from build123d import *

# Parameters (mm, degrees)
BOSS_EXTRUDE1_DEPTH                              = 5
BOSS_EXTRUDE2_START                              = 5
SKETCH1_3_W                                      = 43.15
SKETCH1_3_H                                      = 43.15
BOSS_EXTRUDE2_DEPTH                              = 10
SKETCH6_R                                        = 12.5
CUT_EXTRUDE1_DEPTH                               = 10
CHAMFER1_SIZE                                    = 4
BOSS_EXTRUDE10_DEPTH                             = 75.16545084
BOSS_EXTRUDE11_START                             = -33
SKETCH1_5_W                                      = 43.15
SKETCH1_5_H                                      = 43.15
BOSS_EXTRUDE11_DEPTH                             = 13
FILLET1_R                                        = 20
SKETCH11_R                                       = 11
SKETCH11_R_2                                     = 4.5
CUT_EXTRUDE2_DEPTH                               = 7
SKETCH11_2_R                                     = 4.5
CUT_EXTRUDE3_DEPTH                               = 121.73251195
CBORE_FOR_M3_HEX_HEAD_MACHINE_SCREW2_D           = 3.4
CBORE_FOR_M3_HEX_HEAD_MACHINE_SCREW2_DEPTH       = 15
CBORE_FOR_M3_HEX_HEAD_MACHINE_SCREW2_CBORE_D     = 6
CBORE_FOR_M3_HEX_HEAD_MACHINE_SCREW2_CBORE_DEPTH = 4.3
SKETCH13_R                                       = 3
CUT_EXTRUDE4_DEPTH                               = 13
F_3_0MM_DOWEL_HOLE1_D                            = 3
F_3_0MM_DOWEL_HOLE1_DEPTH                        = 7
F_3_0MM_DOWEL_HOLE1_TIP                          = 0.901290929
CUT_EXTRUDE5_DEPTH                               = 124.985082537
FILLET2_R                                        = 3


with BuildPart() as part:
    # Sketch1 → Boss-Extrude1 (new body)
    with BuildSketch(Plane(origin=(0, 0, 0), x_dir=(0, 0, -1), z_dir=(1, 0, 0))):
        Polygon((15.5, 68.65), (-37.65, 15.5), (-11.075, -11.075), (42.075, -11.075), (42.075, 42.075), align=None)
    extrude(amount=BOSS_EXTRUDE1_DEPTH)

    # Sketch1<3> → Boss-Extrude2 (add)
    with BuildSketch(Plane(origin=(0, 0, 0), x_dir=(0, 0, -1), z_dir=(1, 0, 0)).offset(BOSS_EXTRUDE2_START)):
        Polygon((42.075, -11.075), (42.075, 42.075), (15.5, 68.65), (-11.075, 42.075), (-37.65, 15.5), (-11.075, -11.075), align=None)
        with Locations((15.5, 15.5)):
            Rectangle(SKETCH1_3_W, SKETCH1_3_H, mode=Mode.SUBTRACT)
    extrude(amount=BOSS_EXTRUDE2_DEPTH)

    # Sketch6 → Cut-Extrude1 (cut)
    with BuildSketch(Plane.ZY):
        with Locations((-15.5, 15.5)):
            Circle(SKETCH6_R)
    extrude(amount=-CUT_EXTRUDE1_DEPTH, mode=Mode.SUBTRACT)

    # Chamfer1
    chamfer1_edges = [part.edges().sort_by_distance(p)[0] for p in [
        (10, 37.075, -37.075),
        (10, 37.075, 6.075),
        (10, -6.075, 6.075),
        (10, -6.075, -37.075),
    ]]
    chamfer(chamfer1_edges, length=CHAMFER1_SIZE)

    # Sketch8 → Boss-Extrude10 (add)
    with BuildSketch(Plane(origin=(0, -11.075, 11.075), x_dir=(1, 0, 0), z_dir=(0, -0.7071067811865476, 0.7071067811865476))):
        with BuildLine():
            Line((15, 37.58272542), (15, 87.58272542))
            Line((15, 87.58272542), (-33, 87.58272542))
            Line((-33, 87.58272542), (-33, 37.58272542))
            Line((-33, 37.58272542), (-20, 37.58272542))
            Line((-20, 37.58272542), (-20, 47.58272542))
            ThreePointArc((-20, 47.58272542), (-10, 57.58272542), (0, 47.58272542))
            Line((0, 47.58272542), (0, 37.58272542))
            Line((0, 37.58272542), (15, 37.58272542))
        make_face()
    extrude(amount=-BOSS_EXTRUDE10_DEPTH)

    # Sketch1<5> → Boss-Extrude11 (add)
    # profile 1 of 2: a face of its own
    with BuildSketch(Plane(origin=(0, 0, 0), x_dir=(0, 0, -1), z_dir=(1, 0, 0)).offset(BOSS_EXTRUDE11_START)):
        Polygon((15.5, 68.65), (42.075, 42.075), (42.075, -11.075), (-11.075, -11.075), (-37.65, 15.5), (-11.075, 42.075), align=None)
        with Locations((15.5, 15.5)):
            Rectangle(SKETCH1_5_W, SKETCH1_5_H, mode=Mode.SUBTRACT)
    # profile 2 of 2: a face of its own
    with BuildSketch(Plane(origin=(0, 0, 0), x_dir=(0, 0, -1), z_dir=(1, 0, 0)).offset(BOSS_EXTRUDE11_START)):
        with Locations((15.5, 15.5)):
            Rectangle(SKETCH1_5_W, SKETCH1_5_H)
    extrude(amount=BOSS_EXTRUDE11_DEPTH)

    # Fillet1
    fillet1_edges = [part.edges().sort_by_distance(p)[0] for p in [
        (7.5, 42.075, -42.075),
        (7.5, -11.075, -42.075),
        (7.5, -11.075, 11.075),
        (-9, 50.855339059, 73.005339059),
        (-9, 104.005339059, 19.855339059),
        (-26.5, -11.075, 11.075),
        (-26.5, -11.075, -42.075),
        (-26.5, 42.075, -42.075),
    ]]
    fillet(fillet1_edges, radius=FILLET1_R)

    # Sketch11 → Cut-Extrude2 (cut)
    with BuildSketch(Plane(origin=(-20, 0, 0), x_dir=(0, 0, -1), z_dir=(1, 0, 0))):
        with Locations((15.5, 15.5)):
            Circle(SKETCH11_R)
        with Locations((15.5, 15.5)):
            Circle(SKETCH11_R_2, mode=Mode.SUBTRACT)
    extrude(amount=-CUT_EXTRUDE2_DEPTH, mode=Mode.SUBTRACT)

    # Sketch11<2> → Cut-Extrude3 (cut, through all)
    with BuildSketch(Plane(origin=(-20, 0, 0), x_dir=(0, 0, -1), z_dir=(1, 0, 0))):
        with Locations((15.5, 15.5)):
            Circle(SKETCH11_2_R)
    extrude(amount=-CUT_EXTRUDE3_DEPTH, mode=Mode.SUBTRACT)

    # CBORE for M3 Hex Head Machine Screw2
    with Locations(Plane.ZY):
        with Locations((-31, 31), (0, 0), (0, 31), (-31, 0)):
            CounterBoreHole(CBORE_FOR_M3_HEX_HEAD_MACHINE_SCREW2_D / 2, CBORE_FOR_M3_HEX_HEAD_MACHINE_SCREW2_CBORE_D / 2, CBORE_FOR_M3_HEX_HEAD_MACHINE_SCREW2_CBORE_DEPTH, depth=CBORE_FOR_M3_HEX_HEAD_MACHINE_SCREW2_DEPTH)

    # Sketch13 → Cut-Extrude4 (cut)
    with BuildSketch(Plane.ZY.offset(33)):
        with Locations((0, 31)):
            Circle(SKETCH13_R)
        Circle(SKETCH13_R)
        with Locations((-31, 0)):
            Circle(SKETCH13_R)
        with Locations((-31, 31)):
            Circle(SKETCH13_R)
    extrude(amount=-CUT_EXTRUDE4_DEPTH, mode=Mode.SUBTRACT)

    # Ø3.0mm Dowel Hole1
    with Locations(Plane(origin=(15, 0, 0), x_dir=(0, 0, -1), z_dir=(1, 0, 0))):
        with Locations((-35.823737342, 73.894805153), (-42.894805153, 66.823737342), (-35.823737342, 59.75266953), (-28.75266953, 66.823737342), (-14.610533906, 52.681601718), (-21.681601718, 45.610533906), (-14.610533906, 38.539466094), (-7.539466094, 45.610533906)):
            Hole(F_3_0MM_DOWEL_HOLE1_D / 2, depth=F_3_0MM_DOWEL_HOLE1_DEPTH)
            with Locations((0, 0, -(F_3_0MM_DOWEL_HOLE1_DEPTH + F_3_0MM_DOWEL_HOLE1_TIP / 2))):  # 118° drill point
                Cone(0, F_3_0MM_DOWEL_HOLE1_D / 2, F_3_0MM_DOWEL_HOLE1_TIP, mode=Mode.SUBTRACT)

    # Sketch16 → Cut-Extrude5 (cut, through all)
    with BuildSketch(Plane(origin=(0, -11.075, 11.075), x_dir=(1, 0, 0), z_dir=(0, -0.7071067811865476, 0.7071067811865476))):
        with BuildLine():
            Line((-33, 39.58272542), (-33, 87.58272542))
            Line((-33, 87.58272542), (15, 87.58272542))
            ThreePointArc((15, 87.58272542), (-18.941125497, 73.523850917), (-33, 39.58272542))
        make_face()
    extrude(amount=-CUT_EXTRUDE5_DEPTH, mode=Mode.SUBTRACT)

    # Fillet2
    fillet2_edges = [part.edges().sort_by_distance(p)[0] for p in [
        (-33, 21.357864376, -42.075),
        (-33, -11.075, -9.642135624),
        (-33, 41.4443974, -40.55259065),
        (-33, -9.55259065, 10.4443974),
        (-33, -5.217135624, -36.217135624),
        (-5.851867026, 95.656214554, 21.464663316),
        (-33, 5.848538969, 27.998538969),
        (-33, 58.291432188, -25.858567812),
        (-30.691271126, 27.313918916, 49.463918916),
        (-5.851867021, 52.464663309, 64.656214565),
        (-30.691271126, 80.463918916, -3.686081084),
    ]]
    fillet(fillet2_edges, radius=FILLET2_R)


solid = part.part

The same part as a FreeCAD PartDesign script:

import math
import FreeCAD as App
import Part
import Sketcher
from FreeCAD import Vector


def edges_at(feature, points):
    """Names of the edges that pass closest to the given points."""
    edges = feature.Shape.Edges
    near = lambda p: min(range(len(edges)), key=lambda i: edges[i].distToShape(Part.Vertex(*p))[0])
    return sorted({f"Edge{near(p) + 1}" for p in points})


def add_polygon(sketch, points):
    """Adds a closed chain of lines whose ends are joined by coincident constraints."""
    first, n = sketch.GeometryCount, len(points)
    for a, b in zip(points, points[1:] + points[:1]):
        sketch.addGeometry(Part.LineSegment(App.Vector(*a, 0), App.Vector(*b, 0)), False)
    for i in range(n):
        sketch.addConstraint(Sketcher.Constraint("Coincident", first + i, 2, first + (i + 1) % n, 1))

doc = App.newDocument("Part")
body = doc.addObject("PartDesign::Body", "Body")

# Sketch on YZ plane
sketch1 = body.newObject("Sketcher::SketchObject", "Sketch")
sketch1.AttachmentSupport = (doc.getObject("YZ_Plane"), [""])
sketch1.MapMode = "FlatFace"
add_polygon(sketch1, [(68.65, -15.5), (15.5, 37.65), (-11.075, 11.075), (-11.075, -42.075), (42.075, -42.075)])  # lines 0-4
sketch1.addConstraint([
    Sketcher.Constraint("Vertical", 2),
    Sketcher.Constraint("Horizontal", 3),
    Sketcher.Constraint("Perpendicular", 0, 1),
    Sketcher.Constraint("Parallel", 1, 4),
    Sketcher.Constraint("Equal", 3, 2),
    Sketcher.Constraint("Equal", 1, 4),
    Sketcher.Constraint("DistanceX", 3, 1, 3, 2, 53.15),
    Sketcher.Constraint("DistanceX", -1, 1, 0, 2, 15.5),
    Sketcher.Constraint("DistanceY", 4, 2, -1, 1, 15.5),
    Sketcher.Constraint("DistanceX", 1, 2, -1, 1, 11.075),
])
pad1 = body.newObject("PartDesign::Pad", "Pad")
pad1.Profile = sketch1
pad1.Length = 5

# Sketch on YZ plane
sketch2 = body.newObject("Sketcher::SketchObject", "Sketch001")
sketch2.AttachmentSupport = (doc.getObject("YZ_Plane"), [""])
sketch2.MapMode = "FlatFace"
sketch2.AttachmentOffset = App.Placement(Vector(0, 0, 5), App.Rotation())
add_polygon(sketch2, [(-11.075, -42.075), (42.075, -42.075), (68.65, -15.5), (15.5, 37.65), (-11.075, 11.075)])  # lines 0-4
add_polygon(sketch2, [(-6.075, -37.075), (-6.075, 6.075), (37.075, 6.075), (37.075, -37.075)])  # lines 5-8
sketch2.addConstraint([
    Sketcher.Constraint("Horizontal", 0),
    Sketcher.Constraint("Vertical", 4),
    Sketcher.Constraint("Vertical", 5),
    Sketcher.Constraint("Horizontal", 6),
    Sketcher.Constraint("Vertical", 7),
    Sketcher.Constraint("Horizontal", 8),
    Sketcher.Constraint("Perpendicular", 1, 2),
    Sketcher.Constraint("Perpendicular", 2, 3),
    Sketcher.Constraint("Equal", 0, 4),
    Sketcher.Constraint("Equal", 8, 5),
    Sketcher.Constraint("Equal", 1, 3),
    Sketcher.Constraint("DistanceX", 3, 2, 5, 2, 5.0),
    Sketcher.Constraint("DistanceY", 5, 2, 3, 2, 5.0),
    Sketcher.Constraint("DistanceX", 6, 2, 0, 2, 5.0),
    Sketcher.Constraint("DistanceX", 0, 1, 0, 2, 53.15),
    Sketcher.Constraint("DistanceY", 1, 2, -1, 1, 15.5),
    Sketcher.Constraint("DistanceX", -1, 1, 2, 2, 15.5),
    Sketcher.Constraint("DistanceX", -1, 1, 0, 2, 42.075),
])
pad2 = body.newObject("PartDesign::Pad", "Pad001")
pad2.Profile = sketch2
pad2.Length = 10

# Sketch on YZ plane
sketch3 = body.newObject("Sketcher::SketchObject", "Sketch002")
sketch3.AttachmentSupport = (doc.getObject("YZ_Plane"), [""])
sketch3.MapMode = "FlatFace"
sketch3.addGeometry(Part.Circle(Vector(15.5, -15.5, 0), Vector(0, 0, 1), 12.5), False)
sketch3.addConstraint([
    Sketcher.Constraint("Diameter", 0, 25.0),
    Sketcher.Constraint("DistanceX", -1, 1, 0, 3, 15.5),
    Sketcher.Constraint("DistanceY", 0, 3, -1, 1, 15.5),
])
pocket1 = body.newObject("PartDesign::Pocket", "Pocket")
pocket1.Profile = sketch3
pocket1.Length = 10
pocket1.Reversed = True
doc.recompute()

chamfer = body.newObject("PartDesign::Chamfer", "Chamfer")
chamfer.Base = (pocket1, edges_at(pocket1, [
    (10, 37.075, -37.075),
    (10, 37.075, 6.075),
    (10, -6.075, 6.075),
    (10, -6.075, -37.075),
]))
chamfer.Size = 4

# Sketch on an angled plane
sketch4 = body.newObject("Sketcher::SketchObject", "Sketch003")
sketch4.Placement = App.Placement(Vector(0, -11.075, 11.075), App.Rotation(Vector(1, 0, 0), Vector(0, 0.707106781, 0.707106781), Vector(0, -0.707106781, 0.707106781), "ZXY"))
sketch4.addGeometry([
    Part.LineSegment(Vector(15, 37.582725, 0), Vector(15, 87.582725, 0)),  # 0
    Part.LineSegment(Vector(15, 87.582725, 0), Vector(-33, 87.582725, 0)),  # 1
    Part.LineSegment(Vector(-33, 87.582725, 0), Vector(-33, 37.582725, 0)),  # 2
    Part.LineSegment(Vector(-33, 37.582725, 0), Vector(-20, 37.582725, 0)),  # 3
    Part.LineSegment(Vector(-20, 37.582725, 0), Vector(-20, 47.582725, 0)),  # 4
    Part.ArcOfCircle(Part.Circle(Vector(-10, 47.582725, 0), Vector(0, 0, 1), 10), math.radians(0), math.radians(180)),  # 5
    Part.LineSegment(Vector(0, 47.582725, 0), Vector(0, 37.582725, 0)),  # 6
    Part.LineSegment(Vector(0, 37.582725, 0), Vector(15, 37.582725, 0)),  # 7
], False)
sketch4.addConstraint([
    Sketcher.Constraint("Coincident", 0, 2, 1, 1),
    Sketcher.Constraint("Coincident", 1, 2, 2, 1),
    Sketcher.Constraint("Coincident", 2, 2, 3, 1),
    Sketcher.Constraint("Coincident", 3, 2, 4, 1),
    Sketcher.Constraint("Tangent", 4, 2, 5, 2),
    Sketcher.Constraint("Tangent", 5, 1, 6, 1),
    Sketcher.Constraint("Coincident", 6, 2, 7, 1),
    Sketcher.Constraint("Coincident", 7, 2, 0, 1),
    Sketcher.Constraint("Vertical", 0),
    Sketcher.Constraint("Horizontal", 1),
    Sketcher.Constraint("Vertical", 2),
    Sketcher.Constraint("Horizontal", 3),
    Sketcher.Constraint("Vertical", 4),
    Sketcher.Constraint("Vertical", 6),
    Sketcher.Constraint("Horizontal", 7),
    Sketcher.Constraint("PointOnObject", 5, 1, -2),
    Sketcher.Constraint("Horizontal", 3, 2, 6, 2),
    Sketcher.Constraint("Radius", 5, 10.0),
    Sketcher.Constraint("DistanceX", 1, 2, 1, 1, 48.0),
    Sketcher.Constraint("DistanceX", 3, 1, 3, 2, 13.0),
    Sketcher.Constraint("DistanceY", 0, 1, 0, 2, 50.0),
    Sketcher.Constraint("DistanceY", 4, 1, 4, 2, 10.0),
    Sketcher.Constraint("DistanceY", -1, 1, 5, 3, 47.582725),
])
pad3 = body.newObject("PartDesign::Pad", "Pad002")
pad3.Profile = sketch4
pad3.Length = 75.165451
pad3.Reversed = True

# Sketch on YZ plane
sketch5 = body.newObject("Sketcher::SketchObject", "Sketch004")
sketch5.AttachmentSupport = (doc.getObject("YZ_Plane"), [""])
sketch5.MapMode = "FlatFace"
sketch5.AttachmentOffset = App.Placement(Vector(0, 0, -33), App.Rotation())
add_polygon(sketch5, [(42.075, -42.075), (68.65, -15.5), (15.5, 37.65), (-11.075, 11.075), (-11.075, -42.075)])  # lines 0-4
sketch5.addConstraint([
    Sketcher.Constraint("Vertical", 3),
    Sketcher.Constraint("Horizontal", 4),
    Sketcher.Constraint("Perpendicular", 0, 1),
    Sketcher.Constraint("Perpendicular", 1, 2),
    Sketcher.Constraint("Equal", 4, 3),
    Sketcher.Constraint("Equal", 0, 2),
    Sketcher.Constraint("DistanceX", 4, 1, 4, 2, 53.15),
    Sketcher.Constraint("DistanceY", 0, 2, -1, 1, 15.5),
    Sketcher.Constraint("DistanceX", -1, 1, 1, 2, 15.5),
    Sketcher.Constraint("DistanceX", 2, 2, -1, 1, 11.075),
])
pad4 = body.newObject("PartDesign::Pad", "Pad003")
pad4.Profile = sketch5
pad4.Length = 13
doc.recompute()

fillet = body.newObject("PartDesign::Fillet", "Fillet")
fillet.Base = (pad4, edges_at(pad4, [
    (7.5, 42.075, -42.075),
    (7.5, -11.075, -42.075),
    (7.5, -11.075, 11.075),
    (-9, 50.855, 73.005),
    (-9, 104.005, 19.855),
    (-26.5, -11.075, 11.075),
    (-26.5, -11.075, -42.075),
    (-26.5, 42.075, -42.075),
]))
fillet.Radius = 20

# Sketch on YZ plane
sketch6 = body.newObject("Sketcher::SketchObject", "Sketch005")
sketch6.AttachmentSupport = (doc.getObject("YZ_Plane"), [""])
sketch6.MapMode = "FlatFace"
sketch6.AttachmentOffset = App.Placement(Vector(0, 0, -20), App.Rotation())
sketch6.addGeometry([
    Part.Circle(Vector(15.5, -15.5, 0), Vector(0, 0, 1), 11),
    Part.Circle(Vector(15.5, -15.5, 0), Vector(0, 0, 1), 4.5),
], False)
sketch6.addConstraint([
    Sketcher.Constraint("Coincident", 1, 3, 0, 3),
    Sketcher.Constraint("Diameter", 0, 22.0),
    Sketcher.Constraint("Diameter", 1, 9.0),
    Sketcher.Constraint("DistanceX", -1, 1, 0, 3, 15.5),
    Sketcher.Constraint("DistanceY", 0, 3, -1, 1, 15.5),
])
pocket2 = body.newObject("PartDesign::Pocket", "Pocket001")
pocket2.Profile = sketch6
pocket2.Length = 7

# Sketch on YZ plane
sketch7 = body.newObject("Sketcher::SketchObject", "Sketch006")
sketch7.AttachmentSupport = (doc.getObject("YZ_Plane"), [""])
sketch7.MapMode = "FlatFace"
sketch7.AttachmentOffset = App.Placement(Vector(0, 0, -20), App.Rotation())
sketch7.addGeometry(Part.Circle(Vector(15.5, -15.5, 0), Vector(0, 0, 1), 4.5), False)
sketch7.addConstraint([
    Sketcher.Constraint("Diameter", 0, 9.0),
    Sketcher.Constraint("DistanceX", -1, 1, 0, 3, 15.5),
    Sketcher.Constraint("DistanceY", 0, 3, -1, 1, 15.5),
])
pocket3 = body.newObject("PartDesign::Pocket", "Pocket002")
pocket3.Profile = sketch7
pocket3.Type = "ThroughAll"

# Sketch on YZ plane
sketch8 = body.newObject("Sketcher::SketchObject", "Sketch007")
sketch8.AttachmentSupport = (doc.getObject("YZ_Plane"), [""])
sketch8.MapMode = "FlatFace"
sketch8.addGeometry([
    Part.Circle(Vector(31, -31, 0), Vector(0, 0, 1), 1.7),
    Part.Circle(Vector(0, 0, 0), Vector(0, 0, 1), 1.7),
    Part.Circle(Vector(31, 0, 0), Vector(0, 0, 1), 1.7),
    Part.Circle(Vector(0, -31, 0), Vector(0, 0, 1), 1.7),
], False)
sketch8.addConstraint([
    Sketcher.Constraint("Coincident", 1, 3, -1, 1),
    Sketcher.Constraint("Equal", 0, 1),
    Sketcher.Constraint("Equal", 1, 2),
    Sketcher.Constraint("Equal", 2, 3),
    Sketcher.Constraint("PointOnObject", 2, 3, -1),
    Sketcher.Constraint("PointOnObject", 3, 3, -2),
    Sketcher.Constraint("Horizontal", 0, 3, 3, 3),
    Sketcher.Constraint("Vertical", 0, 3, 2, 3),
    Sketcher.Constraint("Diameter", 0, 3.4),
    Sketcher.Constraint("DistanceX", -1, 1, 0, 3, 31.0),
    Sketcher.Constraint("DistanceY", 0, 3, -1, 1, 31.0),
])
doc.recompute()
hole = body.newObject("PartDesign::Hole", "Hole")
hole.Profile = sketch8
hole.ThreadType = "None"
hole.Diameter = 3.4
hole.DepthType = "Dimension"
hole.Depth = 15
hole.DrillPoint = "Flat"
hole.HoleCutType = "Counterbore"
hole.HoleCutDiameter = 6
hole.HoleCutDepth = 4.3
hole.Reversed = True

# Sketch on YZ plane
sketch9 = body.newObject("Sketcher::SketchObject", "Sketch008")
sketch9.AttachmentSupport = (doc.getObject("YZ_Plane"), [""])
sketch9.MapMode = "FlatFace"
sketch9.AttachmentOffset = App.Placement(Vector(0, 0, -33), App.Rotation())
sketch9.addGeometry([
    Part.Circle(Vector(31, 0, 0), Vector(0, 0, 1), 3),
    Part.Circle(Vector(0, 0, 0), Vector(0, 0, 1), 3),
    Part.Circle(Vector(0, -31, 0), Vector(0, 0, 1), 3),
    Part.Circle(Vector(31, -31, 0), Vector(0, 0, 1), 3),
], False)
sketch9.addConstraint([
    Sketcher.Constraint("Coincident", 1, 3, -1, 1),
    Sketcher.Constraint("Equal", 0, 1),
    Sketcher.Constraint("Equal", 1, 2),
    Sketcher.Constraint("Equal", 2, 3),
    Sketcher.Constraint("PointOnObject", 0, 3, -1),
    Sketcher.Constraint("PointOnObject", 2, 3, -2),
    Sketcher.Constraint("Horizontal", 2, 3, 3, 3),
    Sketcher.Constraint("Vertical", 0, 3, 3, 3),
    Sketcher.Constraint("Diameter", 0, 6.0),
    Sketcher.Constraint("DistanceX", -1, 1, 0, 3, 31.0),
    Sketcher.Constraint("DistanceY", 2, 3, -1, 1, 31.0),
])
pocket4 = body.newObject("PartDesign::Pocket", "Pocket003")
pocket4.Profile = sketch9
pocket4.Length = 13
pocket4.Reversed = True

# Sketch on YZ plane
sketch10 = body.newObject("Sketcher::SketchObject", "Sketch009")
sketch10.AttachmentSupport = (doc.getObject("YZ_Plane"), [""])
sketch10.MapMode = "FlatFace"
sketch10.AttachmentOffset = App.Placement(Vector(0, 0, 15), App.Rotation())
sketch10.addGeometry([
    Part.Circle(Vector(73.894805, 35.823737, 0), Vector(0, 0, 1), 1.5),  # 0
    Part.Circle(Vector(66.823737, 42.894805, 0), Vector(0, 0, 1), 1.5),  # 1
    Part.Circle(Vector(59.75267, 35.823737, 0), Vector(0, 0, 1), 1.5),  # 2
    Part.Circle(Vector(66.823737, 28.75267, 0), Vector(0, 0, 1), 1.5),  # 3
    Part.Circle(Vector(52.681602, 14.610534, 0), Vector(0, 0, 1), 1.5),  # 4
    Part.Circle(Vector(45.610534, 21.681602, 0), Vector(0, 0, 1), 1.5),  # 5
    Part.Circle(Vector(38.539466, 14.610534, 0), Vector(0, 0, 1), 1.5),  # 6
    Part.Circle(Vector(45.610534, 7.539466, 0), Vector(0, 0, 1), 1.5),  # 7
], False)
sketch10.addConstraint([
    Sketcher.Constraint("Equal", 0, 1),
    Sketcher.Constraint("Equal", 1, 2),
    Sketcher.Constraint("Equal", 2, 3),
    Sketcher.Constraint("Equal", 3, 4),
    Sketcher.Constraint("Equal", 4, 5),
    Sketcher.Constraint("Equal", 5, 6),
    Sketcher.Constraint("Equal", 6, 7),
    Sketcher.Constraint("Horizontal", 0, 3, 2, 3),
    Sketcher.Constraint("Horizontal", 4, 3, 6, 3),
    Sketcher.Constraint("Vertical", 1, 3, 3, 3),
    Sketcher.Constraint("Vertical", 5, 3, 7, 3),
    Sketcher.Constraint("Diameter", 0, 3.0),
    Sketcher.Constraint("DistanceX", -1, 1, 4, 3, 52.681602),
    Sketcher.Constraint("DistanceY", -1, 1, 5, 3, 21.681602),
    Sketcher.Constraint("DistanceX", -1, 1, 2, 3, 59.75267),
    Sketcher.Constraint("DistanceY", -1, 1, 3, 3, 28.75267),
    Sketcher.Constraint("DistanceY", 4, 3, 1, 3, 28.284271),
    Sketcher.Constraint("DistanceX", 5, 3, 0, 3, 28.284271),
    Sketcher.Constraint("DistanceX", 6, 3, 3, 3, 28.284271),
    Sketcher.Constraint("DistanceY", 7, 3, 2, 3, 28.284271),
    Sketcher.Constraint("DistanceX", -1, 1, 0, 3, 73.894805),
    Sketcher.Constraint("DistanceY", -1, 1, 0, 3, 35.823737),
    Sketcher.Constraint("DistanceX", -1, 1, 1, 3, 66.823737),
    Sketcher.Constraint("DistanceY", -1, 1, 1, 3, 42.894805),
])
doc.recompute()
hole2 = body.newObject("PartDesign::Hole", "Hole001")
hole2.Profile = sketch10
hole2.ThreadType = "None"
hole2.Diameter = 3
hole2.DepthType = "Dimension"
hole2.Depth = 7
hole2.DrillPoint = "Angled"
hole2.DrillPointAngle = 118

# Sketch on an angled plane
sketch11 = body.newObject("Sketcher::SketchObject", "Sketch010")
sketch11.Placement = App.Placement(Vector(0, -11.075, 11.075), App.Rotation(Vector(1, 0, 0), Vector(0, 0.707106781, 0.707106781), Vector(0, -0.707106781, 0.707106781), "ZXY"))
sketch11.addGeometry([
    Part.LineSegment(Vector(-33, 87.582725, 0), Vector(-33, 39.582725, 0)),
    Part.ArcOfCircle(Part.Circle(Vector(15, 39.582725, 0), Vector(0, 0, 1), 48), math.radians(90), math.radians(180)),
    Part.LineSegment(Vector(15, 87.582725, 0), Vector(-33, 87.582725, 0)),
], False)
sketch11.addConstraint([
    Sketcher.Constraint("Tangent", 0, 2, 1, 2),
    Sketcher.Constraint("Tangent", 1, 1, 2, 1),
    Sketcher.Constraint("Coincident", 2, 2, 0, 1),
    Sketcher.Constraint("Vertical", 0),
    Sketcher.Constraint("Horizontal", 2),
    Sketcher.Constraint("Radius", 1, 48.0),
    Sketcher.Constraint("DistanceX", -1, 1, 1, 3, 15.0),
    Sketcher.Constraint("DistanceY", -1, 1, 1, 3, 39.582725),
])
pocket5 = body.newObject("PartDesign::Pocket", "Pocket004")
pocket5.Profile = sketch11
pocket5.Type = "ThroughAll"
doc.recompute()

fillet2 = body.newObject("PartDesign::Fillet", "Fillet001")
fillet2.Base = (pocket5, edges_at(pocket5, [
    (-33, 21.358, -42.075),
    (-33, -11.075, -9.642),
    (-33, 41.444, -40.553),
    (-33, -9.553, 10.444),
    (-33, -5.217, -36.217),
    (-5.852, 95.656, 21.465),
    (-33, 5.849, 27.999),
    (-33, 58.999, -25.151),
    (-30.691, 27.314, 49.464),
    (-5.852, 52.465, 64.656),
    (-30.691, 80.464, -3.686),
]))
fillet2.Radius = 3

doc.recompute()
